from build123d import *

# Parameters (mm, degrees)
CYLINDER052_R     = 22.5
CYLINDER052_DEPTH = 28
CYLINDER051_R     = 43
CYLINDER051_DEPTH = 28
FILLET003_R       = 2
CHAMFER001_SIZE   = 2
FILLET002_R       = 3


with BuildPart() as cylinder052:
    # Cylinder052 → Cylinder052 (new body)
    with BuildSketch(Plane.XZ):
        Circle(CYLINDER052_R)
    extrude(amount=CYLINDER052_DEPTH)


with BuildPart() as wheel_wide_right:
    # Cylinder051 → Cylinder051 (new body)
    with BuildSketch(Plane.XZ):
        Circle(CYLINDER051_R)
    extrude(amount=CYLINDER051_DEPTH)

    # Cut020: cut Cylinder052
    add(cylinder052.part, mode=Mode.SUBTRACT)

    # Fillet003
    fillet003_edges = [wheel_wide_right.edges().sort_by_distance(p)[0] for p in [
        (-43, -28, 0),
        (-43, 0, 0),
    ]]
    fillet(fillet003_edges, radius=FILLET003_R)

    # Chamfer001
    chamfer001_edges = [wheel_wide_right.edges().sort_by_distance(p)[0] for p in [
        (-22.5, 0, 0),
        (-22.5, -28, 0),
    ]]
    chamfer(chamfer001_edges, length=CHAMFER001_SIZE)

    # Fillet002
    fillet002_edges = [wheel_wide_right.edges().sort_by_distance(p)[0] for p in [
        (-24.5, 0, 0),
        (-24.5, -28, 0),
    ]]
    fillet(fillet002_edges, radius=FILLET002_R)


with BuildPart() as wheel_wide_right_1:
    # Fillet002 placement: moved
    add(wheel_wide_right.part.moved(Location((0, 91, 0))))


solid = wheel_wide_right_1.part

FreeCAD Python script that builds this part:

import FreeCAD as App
import Part
import Sketcher

V = App.Vector
Q = App.Units.Quantity


def edges_at(feature, points):
    """Names of the edges that pass closest to the given points."""
    edges = feature.Shape.Edges
    near = lambda p: min(range(len(edges)), key=lambda i: edges[i].distToShape(Part.Vertex(*p))[0])
    return sorted({f"Edge{near(p) + 1}" for p in points})

doc = App.newDocument("Part")
body = doc.addObject("PartDesign::Body", "Body")

sketch1 = body.newObject("Sketcher::SketchObject", "Sketch")
sketch1.AttachmentSupport = (doc.getObject("XZ_Plane"), [""])
sketch1.MapMode = "FlatFace"
sketch1.addGeometry(Part.Circle(V(0, 0, 0), V(0, 0, 1), 22), False)
sketch1.addConstraint([
    Sketcher.Constraint("Coincident", 0, 3, -1, 1),
    Sketcher.Constraint("Diameter", 0, Q("45 mm")),
])
pad1 = body.newObject("PartDesign::Pad", "Pad")
pad1.Profile = sketch1
pad1.Length = 28
body2 = doc.addObject("PartDesign::Body", "Body001")

sketch2 = body2.newObject("Sketcher::SketchObject", "Sketch001")
sketch2.AttachmentSupport = (doc.getObject("XZ_Plane001"), [""])
sketch2.MapMode = "FlatFace"
sketch2.addGeometry(Part.Circle(V(0, 0, 0), V(0, 0, 1), 43), False)
sketch2.addConstraint([
    Sketcher.Constraint("Coincident", 0, 3, -1, 1),
    Sketcher.Constraint("Diameter", 0, Q("86 mm")),
])
pad2 = body2.newObject("PartDesign::Pad", "Pad001")
pad2.Profile = sketch2
pad2.Length = 28
doc.recompute()

boolean = body2.newObject("PartDesign::Boolean", "Boolean")
boolean.Type = "Cut"
boolean.addObjects([body])
doc.recompute()

fillet = body2.newObject("PartDesign::Fillet", "Fillet")
fillet.Base = (boolean, edges_at(boolean, [(-43, -28, 0), (-43, 0, 0)]))
fillet.Radius = 2
doc.recompute()

chamfer = body2.newObject("PartDesign::Chamfer", "Chamfer")
chamfer.Base = (fillet, edges_at(fillet, [(-22.5, 0, 0), (-22.5, -28, 0)]))
chamfer.Size = 2
doc.recompute()

fillet2 = body2.newObject("PartDesign::Fillet", "Fillet001")
fillet2.Base = (chamfer, edges_at(chamfer, [(-24.5, 0, 0), (-24.5, -28, 0)]))
fillet2.Radius = 3
body3 = doc.addObject("PartDesign::Body", "Body002")
doc.recompute()

body2.Placement = App.Placement(V(0, 91, 0), App.Rotation(V(0, 0, 1), 0))
boolean2 = body3.newObject("PartDesign::Boolean", "Boolean001")
boolean2.Type = "Fuse"
boolean2.addObjects([body2])

doc.recompute()
